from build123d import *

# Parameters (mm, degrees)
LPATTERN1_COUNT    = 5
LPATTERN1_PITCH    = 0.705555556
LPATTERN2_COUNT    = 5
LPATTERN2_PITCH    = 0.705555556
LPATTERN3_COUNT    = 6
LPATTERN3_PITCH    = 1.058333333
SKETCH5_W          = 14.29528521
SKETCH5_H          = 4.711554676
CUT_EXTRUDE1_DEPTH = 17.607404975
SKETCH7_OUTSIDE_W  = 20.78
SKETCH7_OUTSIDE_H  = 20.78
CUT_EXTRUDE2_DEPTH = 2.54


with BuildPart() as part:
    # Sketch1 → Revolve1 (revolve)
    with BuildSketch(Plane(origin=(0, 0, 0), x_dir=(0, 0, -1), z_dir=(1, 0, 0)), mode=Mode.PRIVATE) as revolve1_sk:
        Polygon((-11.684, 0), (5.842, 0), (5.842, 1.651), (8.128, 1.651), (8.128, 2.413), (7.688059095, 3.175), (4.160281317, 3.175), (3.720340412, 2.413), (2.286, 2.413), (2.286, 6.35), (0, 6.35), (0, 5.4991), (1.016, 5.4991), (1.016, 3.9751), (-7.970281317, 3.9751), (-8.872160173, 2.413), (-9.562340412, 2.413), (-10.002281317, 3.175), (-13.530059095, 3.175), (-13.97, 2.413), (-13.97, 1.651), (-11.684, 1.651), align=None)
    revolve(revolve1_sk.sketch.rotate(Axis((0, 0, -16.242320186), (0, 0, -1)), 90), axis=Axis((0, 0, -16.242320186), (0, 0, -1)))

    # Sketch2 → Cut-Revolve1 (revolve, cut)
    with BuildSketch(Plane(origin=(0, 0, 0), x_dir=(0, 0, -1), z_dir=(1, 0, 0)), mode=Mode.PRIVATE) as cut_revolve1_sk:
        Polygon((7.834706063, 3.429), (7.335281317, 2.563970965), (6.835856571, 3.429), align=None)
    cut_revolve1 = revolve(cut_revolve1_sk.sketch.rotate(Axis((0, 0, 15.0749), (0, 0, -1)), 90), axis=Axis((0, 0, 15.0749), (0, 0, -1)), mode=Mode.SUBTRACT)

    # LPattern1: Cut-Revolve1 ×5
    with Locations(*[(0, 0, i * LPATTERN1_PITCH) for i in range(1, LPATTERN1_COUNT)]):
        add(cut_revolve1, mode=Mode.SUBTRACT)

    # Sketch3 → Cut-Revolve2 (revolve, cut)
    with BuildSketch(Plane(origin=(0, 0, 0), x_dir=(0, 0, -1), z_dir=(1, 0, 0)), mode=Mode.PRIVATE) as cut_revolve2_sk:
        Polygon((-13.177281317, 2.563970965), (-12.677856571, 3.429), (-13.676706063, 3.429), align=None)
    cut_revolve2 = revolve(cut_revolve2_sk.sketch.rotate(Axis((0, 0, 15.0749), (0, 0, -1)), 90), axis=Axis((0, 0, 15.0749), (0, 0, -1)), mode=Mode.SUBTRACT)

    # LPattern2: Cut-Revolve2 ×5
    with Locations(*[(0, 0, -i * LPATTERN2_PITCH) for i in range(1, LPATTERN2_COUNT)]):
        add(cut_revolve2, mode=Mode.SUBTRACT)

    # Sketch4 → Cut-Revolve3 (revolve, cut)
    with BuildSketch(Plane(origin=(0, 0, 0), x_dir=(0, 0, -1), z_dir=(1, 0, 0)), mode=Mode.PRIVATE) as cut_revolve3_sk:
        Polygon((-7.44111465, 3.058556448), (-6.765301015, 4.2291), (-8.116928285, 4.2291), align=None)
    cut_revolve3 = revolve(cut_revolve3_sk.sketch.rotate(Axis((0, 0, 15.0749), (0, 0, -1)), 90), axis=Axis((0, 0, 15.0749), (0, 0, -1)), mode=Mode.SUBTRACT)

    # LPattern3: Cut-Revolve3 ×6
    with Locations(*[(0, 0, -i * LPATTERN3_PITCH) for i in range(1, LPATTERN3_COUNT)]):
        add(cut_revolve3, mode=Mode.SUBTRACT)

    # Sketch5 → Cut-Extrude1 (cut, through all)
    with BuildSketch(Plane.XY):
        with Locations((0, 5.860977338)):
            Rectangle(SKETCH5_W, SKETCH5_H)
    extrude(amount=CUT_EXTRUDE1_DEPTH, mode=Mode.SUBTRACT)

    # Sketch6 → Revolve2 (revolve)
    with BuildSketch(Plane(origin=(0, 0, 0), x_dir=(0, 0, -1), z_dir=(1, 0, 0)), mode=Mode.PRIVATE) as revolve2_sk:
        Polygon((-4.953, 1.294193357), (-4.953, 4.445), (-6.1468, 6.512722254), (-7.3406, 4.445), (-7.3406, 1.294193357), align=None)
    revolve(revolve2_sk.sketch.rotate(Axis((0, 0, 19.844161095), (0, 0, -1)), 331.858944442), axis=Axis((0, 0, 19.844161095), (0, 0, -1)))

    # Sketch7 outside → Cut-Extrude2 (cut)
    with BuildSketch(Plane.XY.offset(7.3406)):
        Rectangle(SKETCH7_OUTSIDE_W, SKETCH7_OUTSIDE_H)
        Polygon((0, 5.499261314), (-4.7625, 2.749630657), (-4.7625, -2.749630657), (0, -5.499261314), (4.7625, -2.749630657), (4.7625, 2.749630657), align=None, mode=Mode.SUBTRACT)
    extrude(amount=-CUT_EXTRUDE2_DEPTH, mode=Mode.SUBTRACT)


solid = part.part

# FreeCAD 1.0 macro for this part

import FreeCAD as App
import Part
import Sketcher
from FreeCAD import Vector
Q = App.Units.Quantity

doc = App.newDocument("Part")
params = doc.addObject("Spreadsheet::Sheet", "Params")
for row, (alias, value) in enumerate([
    ("sketch1_width", "0.03 in"),
    ("sketch1_width2", "0.06 in"),
    ("sketch1_height", "0.69 in"),
    ("sketch1_height2", "0.09 in"),
    ("sketch1_height3", "0.04 in"),
    ("revolution_angle", "360 deg"),
    ("groove_angle", "360 deg"),
    ("linearpattern_pitch", "0.705556 mm"),
    ("groove2_angle", "360 deg"),
    ("linearpattern2_pitch", "0.705556 mm"),
    ("groove3_angle", "360 deg"),
    ("linearpattern3_pitch", "1.058333 mm"),
    ("sketch6_height", "0.094 in"),
    ("revolution2_angle", "360 deg"),
    ("pocket2_length", "0.1 in"),
], start=1):
    params.set(f"A{row}", alias)
    params.set(f"B{row}", "=" + value)
    params.setAlias(f"B{row}", alias)

body = doc.addObject("PartDesign::Body", "Body")

# Sketch on YZ plane
sketch1 = doc.addObject("Sketcher::SketchObject", "Sketch")
body.addObject(sketch1)
sketch1.AttachmentSupport = (doc.YZ_Plane, [""])
sketch1.MapMode = "FlatFace"
sketch1.addGeometry([
    Part.LineSegment(Vector(0, 11.684, 0), Vector(0, -5.842, 0)),  # 0
    Part.LineSegment(Vector(0, -5.842, 0), Vector(1.651, -5.842, 0)),  # 1
    Part.LineSegment(Vector(1.651, -5.842, 0), Vector(1.651, -8.128, 0)),  # 2
    Part.LineSegment(Vector(1.651, -8.128, 0), Vector(2.413, -8.128, 0)),  # 3
    Part.LineSegment(Vector(2.413, -8.128, 0), Vector(3.175, -7.688059, 0)),  # 4
    Part.LineSegment(Vector(3.175, -7.688059, 0), Vector(3.175, -4.160281, 0)),  # 5
    Part.LineSegment(Vector(3.175, -4.160281, 0), Vector(2.413, -3.72034, 0)),  # 6
    Part.LineSegment(Vector(2.413, -3.72034, 0), Vector(2.413, -2.286, 0)),  # 7
    Part.LineSegment(Vector(2.413, -2.286, 0), Vector(6.35, -2.286, 0)),  # 8
    Part.LineSegment(Vector(6.35, -2.286, 0), Vector(6.35, 0, 0)),  # 9
    Part.LineSegment(Vector(6.35, 0, 0), Vector(5.4991, 0, 0)),  # 10
    Part.LineSegment(Vector(5.4991, 0, 0), Vector(5.4991, -1.016, 0)),  # 11
    Part.LineSegment(Vector(5.4991, -1.016, 0), Vector(3.9751, -1.016, 0)),  # 12
    Part.LineSegment(Vector(3.9751, -1.016, 0), Vector(3.9751, 7.970281, 0)),  # 13
    Part.LineSegment(Vector(3.9751, 7.970281, 0), Vector(2.413, 8.87216, 0)),  # 14
    Part.LineSegment(Vector(2.413, 8.87216, 0), Vector(2.413, 9.56234, 0)),  # 15
    Part.LineSegment(Vector(2.413, 9.56234, 0), Vector(3.175, 10.002281, 0)),  # 16
    Part.LineSegment(Vector(3.175, 10.002281, 0), Vector(3.175, 13.530059, 0)),  # 17
    Part.LineSegment(Vector(3.175, 13.530059, 0), Vector(2.413, 13.97, 0)),  # 18
    Part.LineSegment(Vector(2.413, 13.97, 0), Vector(1.651, 13.97, 0)),  # 19
    Part.LineSegment(Vector(1.651, 13.97, 0), Vector(1.651, 11.684, 0)),  # 20
    Part.LineSegment(Vector(1.651, 11.684, 0), Vector(0, 11.684, 0)),  # 21
], False)
sketch1.addConstraint([
    Sketcher.Constraint("Coincident", 0, 2, 1, 1),
    Sketcher.Constraint("Coincident", 1, 2, 2, 1),
    Sketcher.Constraint("Coincident", 2, 2, 3, 1),
    Sketcher.Constraint("Coincident", 3, 2, 4, 1),
    Sketcher.Constraint("Coincident", 4, 2, 5, 1),
    Sketcher.Constraint("Coincident", 5, 2, 6, 1),
    Sketcher.Constraint("Coincident", 6, 2, 7, 1),
    Sketcher.Constraint("Coincident", 7, 2, 8, 1),
    Sketcher.Constraint("Coincident", 8, 2, 9, 1),
    Sketcher.Constraint("Coincident", 9, 2, 10, 1),
    Sketcher.Constraint("Coincident", 10, 2, 11, 1),
    Sketcher.Constraint("Coincident", 11, 2, 12, 1),
    Sketcher.Constraint("Coincident", 12, 2, 13, 1),
    Sketcher.Constraint("Coincident", 13, 2, 14, 1),
    Sketcher.Constraint("Coincident", 14, 2, 15, 1),
    Sketcher.Constraint("Coincident", 15, 2, 16, 1),
    Sketcher.Constraint("Coincident", 16, 2, 17, 1),
    Sketcher.Constraint("Coincident", 17, 2, 18, 1),
    Sketcher.Constraint("Coincident", 18, 2, 19, 1),
    Sketcher.Constraint("Coincident", 19, 2, 20, 1),
    Sketcher.Constraint("Coincident", 20, 2, 21, 1),
    Sketcher.Constraint("Coincident", 21, 2, 0, 1),
    Sketcher.Constraint("Vertical", 0),
    Sketcher.Constraint("Horizontal", 1),
    Sketcher.Constraint("Vertical", 2),
    Sketcher.Constraint("Horizontal", 3),
    Sketcher.Constraint("Vertical", 5),
    Sketcher.Constraint("Vertical", 7),
    Sketcher.Constraint("Horizontal", 8),
    Sketcher.Constraint("Vertical", 9),
    Sketcher.Constraint("Horizontal", 10),
    Sketcher.Constraint("Vertical", 11),
    Sketcher.Constraint("Horizontal", 12),
    Sketcher.Constraint("Vertical", 13),
    Sketcher.Constraint("Vertical", 15),
    Sketcher.Constraint("Vertical", 17),
    Sketcher.Constraint("Horizontal", 19),
    Sketcher.Constraint("Vertical", 20),
    Sketcher.Constraint("Horizontal", 21),
    Sketcher.Constraint("PointOnObject", 0, 2, -2),
    Sketcher.Constraint("PointOnObject", 9, 2, -1),
    Sketcher.Constraint("Parallel", 6, 14),
    Sketcher.Constraint("Parallel", 4, 16),
    Sketcher.Constraint("Parallel", 14, 18),
    Sketcher.Constraint("Vertical", 3, 2, 6, 2),
    Sketcher.Constraint("Vertical", 7, 2, 14, 2),
    Sketcher.Constraint("Vertical", 5, 2, 16, 2),
    Sketcher.Constraint("Vertical", 15, 2, 18, 2),
    Sketcher.Constraint("Vertical", 2, 2, 19, 2),
    Sketcher.Constraint("Equal", 2, 9),
    Sketcher.Constraint("Equal", 5, 17),
    Sketcher.Constraint("Equal", 9, 20),
    Sketcher.Constraint("Equal", 4, 6),
    Sketcher.Constraint("Angle", 4, Q("30 deg")),
    Sketcher.Constraint("DistanceX", 3, 1, 3, 2, Q("0.03 in")),
    Sketcher.Constraint("DistanceX", 12, 2, 12, 1, Q("0.06 in")),
    Sketcher.Constraint("DistanceY", 0, 2, 0, 1, Q("0.69 in")),
    Sketcher.Constraint("DistanceY", 2, 2, 2, 1, Q("0.09 in")),
    Sketcher.Constraint("DistanceY", 11, 2, 11, 1, Q("0.04 in")),
    Sketcher.Constraint("DistanceX", 1, 1, 1, 2, Q("0.065 in")),
    Sketcher.Constraint("DistanceX", 8, 1, 8, 2, Q("0.155 in")),
    Sketcher.Constraint("DistanceY", 0, 2, -1, 1, Q("0.23 in")),
    Sketcher.Constraint("DistanceX", 3, 2, 4, 2, Q("0.03 in")),
    Sketcher.Constraint("DistanceY", 13, 2, 16, 2, Q("0.08 in")),
    Sketcher.Constraint("DistanceX", 10, 2, 10, 1, Q("0.0335 in")),
    Sketcher.Constraint("DistanceY", 7, 1, 7, 2, Q("1.43434 mm")),
])
sketch1.setExpression("Constraints[54]", "Params.sketch1_width")
sketch1.setExpression("Constraints[55]", "Params.sketch1_width2")
sketch1.setExpression("Constraints[56]", "Params.sketch1_height")
sketch1.setExpression("Constraints[57]", "Params.sketch1_height2")
sketch1.setExpression("Constraints[58]", "Params.sketch1_height3")
revolution = doc.addObject("PartDesign::Revolution", "Revolution")
body.addObject(revolution)
revolution.Profile = sketch1
revolution.ReferenceAxis = (sketch1, ["V_Axis"])
revolution.setExpression("Angle", "Params.revolution_angle")

# Sketch on YZ plane
sketch2 = doc.addObject("Sketcher::SketchObject", "Sketch001")
body.addObject(sketch2)
sketch2.AttachmentSupport = (doc.YZ_Plane, [""])
sketch2.MapMode = "FlatFace"
sketch2.addGeometry([
    Part.LineSegment(Vector(2.563971, -7.335281, 0), Vector(3.429, -7.834706, 0)),
    Part.LineSegment(Vector(3.429, -7.834706, 0), Vector(3.429, -6.835857, 0)),
    Part.LineSegment(Vector(3.429, -6.835857, 0), Vector(2.563971, -7.335281, 0)),
], False)
sketch2.addConstraint([
    Sketcher.Constraint("Coincident", 0, 2, 1, 1),
    Sketcher.Constraint("Coincident", 1, 2, 2, 1),
    Sketcher.Constraint("Coincident", 2, 2, 0, 1),
    Sketcher.Constraint("Vertical", 1),
    Sketcher.Constraint("Equal", 0, 2),
    Sketcher.Constraint("Angle", 0, Q("-30 deg")),
    Sketcher.Constraint("DistanceX", -1, 1, 0, 2, Q("0.135 in")),
    Sketcher.Constraint("DistanceY", 1, 1, 1, 2, Q("0.998849 mm")),
    Sketcher.Constraint("DistanceY", 2, 2, -1, 1, Q("7.335281 mm")),
])
groove = doc.addObject("PartDesign::Groove", "Groove")
body.addObject(groove)
groove.Profile = sketch2
groove.ReferenceAxis = (sketch2, ["V_Axis"])
groove.setExpression("Angle", "Params.groove_angle")
doc.recompute()

linearpattern = doc.addObject("PartDesign::LinearPattern", "LinearPattern")
body.addObject(linearpattern)
linearpattern.Originals = [groove]
linearpattern.Direction = (doc.Z_Axis, [""])
linearpattern.Mode = "offset"
linearpattern.setExpression("Offset", "Params.linearpattern_pitch")
linearpattern.Occurrences = 5
body.Tip = linearpattern

# Sketch on YZ plane
sketch3 = doc.addObject("Sketcher::SketchObject", "Sketch002")
body.addObject(sketch3)
sketch3.AttachmentSupport = (doc.YZ_Plane, [""])
sketch3.MapMode = "FlatFace"
sketch3.addGeometry([
    Part.LineSegment(Vector(2.563971, 13.177281, 0), Vector(3.429, 12.677857, 0)),
    Part.LineSegment(Vector(3.429, 12.677857, 0), Vector(3.429, 13.676706, 0)),
    Part.LineSegment(Vector(3.429, 13.676706, 0), Vector(2.563971, 13.177281, 0)),
], False)
sketch3.addConstraint([
    Sketcher.Constraint("Coincident", 0, 2, 1, 1),
    Sketcher.Constraint("Coincident", 1, 2, 2, 1),
    Sketcher.Constraint("Coincident", 2, 2, 0, 1),
    Sketcher.Constraint("Vertical", 1),
    Sketcher.Constraint("Equal", 0, 2),
    Sketcher.Constraint("Angle", 0, Q("-30 deg")),
    Sketcher.Constraint("DistanceX", -1, 1, 0, 2, Q("0.135 in")),
    Sketcher.Constraint("DistanceY", 1, 1, 1, 2, Q("0.998849 mm")),
    Sketcher.Constraint("DistanceY", -1, 1, 2, 2, Q("13.177281 mm")),
])
groove2 = doc.addObject("PartDesign::Groove", "Groove001")
body.addObject(groove2)
groove2.Profile = sketch3
groove2.ReferenceAxis = (sketch3, ["V_Axis"])
groove2.setExpression("Angle", "Params.groove2_angle")
doc.recompute()

linearpattern2 = doc.addObject("PartDesign::LinearPattern", "LinearPattern001")
body.addObject(linearpattern2)
linearpattern2.Originals = [groove2]
linearpattern2.Direction = (doc.Z_Axis, [""])
linearpattern2.Mode = "offset"
linearpattern2.setExpression("Offset", "Params.linearpattern2_pitch")
linearpattern2.Occurrences = 5
linearpattern2.Reversed = True
body.Tip = linearpattern2

# Sketch on YZ plane
sketch4 = doc.addObject("Sketcher::SketchObject", "Sketch003")
body.addObject(sketch4)
sketch4.AttachmentSupport = (doc.YZ_Plane, [""])
sketch4.MapMode = "FlatFace"
sketch4.addGeometry([
    Part.LineSegment(Vector(3.058556, 7.441115, 0), Vector(4.2291, 6.765301, 0)),
    Part.LineSegment(Vector(4.2291, 6.765301, 0), Vector(4.2291, 8.116928, 0)),
    Part.LineSegment(Vector(4.2291, 8.116928, 0), Vector(3.058556, 7.441115, 0)),
], False)
sketch4.addConstraint([
    Sketcher.Constraint("Coincident", 0, 2, 1, 1),
    Sketcher.Constraint("Coincident", 1, 2, 2, 1),
    Sketcher.Constraint("Coincident", 2, 2, 0, 1),
    Sketcher.Constraint("Vertical", 1),
    Sketcher.Constraint("Equal", 0, 2),
    Sketcher.Constraint("Angle", 0, Q("-30 deg")),
    Sketcher.Constraint("DistanceX", -1, 1, 0, 2, Q("0.1665 in")),
    Sketcher.Constraint("DistanceY", -1, 1, 0, 2, Q("6.765301 mm")),
    Sketcher.Constraint("DistanceY", 1, 1, 1, 2, Q("1.351627 mm")),
])
groove3 = doc.addObject("PartDesign::Groove", "Groove002")
body.addObject(groove3)
groove3.Profile = sketch4
groove3.ReferenceAxis = (sketch4, ["V_Axis"])
groove3.setExpression("Angle", "Params.groove3_angle")
doc.recompute()

linearpattern3 = doc.addObject("PartDesign::LinearPattern", "LinearPattern002")
body.addObject(linearpattern3)
linearpattern3.Originals = [groove3]
linearpattern3.Direction = (doc.Z_Axis, [""])
linearpattern3.Mode = "offset"
linearpattern3.setExpression("Offset", "Params.linearpattern3_pitch")
linearpattern3.Occurrences = 6
linearpattern3.Reversed = True
body.Tip = linearpattern3

# Sketch on XY plane
sketch5 = doc.addObject("Sketcher::SketchObject", "Sketch004")
body.addObject(sketch5)
sketch5.AttachmentSupport = (doc.XY_Plane, [""])
sketch5.MapMode = "FlatFace"
sketch5.addGeometry([
    Part.LineSegment(Vector(-7.147643, 8.216755, 0), Vector(-7.147643, 3.5052, 0)),
    Part.LineSegment(Vector(-7.147643, 3.5052, 0), Vector(7.147643, 3.5052, 0)),
    Part.LineSegment(Vector(7.147643, 3.5052, 0), Vector(7.147643, 8.216755, 0)),
    Part.LineSegment(Vector(7.147643, 8.216755, 0), Vector(-7.147643, 8.216755, 0)),
], False)
sketch5.addConstraint([
    Sketcher.Constraint("Coincident", 0, 2, 1, 1),
    Sketcher.Constraint("Coincident", 1, 2, 2, 1),
    Sketcher.Constraint("Coincident", 2, 2, 3, 1),
    Sketcher.Constraint("Coincident", 3, 2, 0, 1),
    Sketcher.Constraint("Vertical", 0),
    Sketcher.Constraint("Horizontal", 1),
    Sketcher.Constraint("Vertical", 2),
    Sketcher.Constraint("Horizontal", 3),
    Sketcher.Constraint("DistanceY", -1, 1, 0, 2, Q("0.138 in")),
    Sketcher.Constraint("DistanceX", 1, 1, 1, 2, Q("14.295285 mm")),
    Sketcher.Constraint("DistanceY", 0, 2, 0, 1, Q("4.711555 mm")),
    Sketcher.Constraint("DistanceX", 0, 2, -1, 1, Q("7.147643 mm")),
])
pocket1 = doc.addObject("PartDesign::Pocket", "Pocket")
body.addObject(pocket1)
pocket1.Profile = sketch5
pocket1.Type = "ThroughAll"
pocket1.Reversed = True

# Sketch on YZ plane
sketch6 = doc.addObject("Sketcher::SketchObject", "Sketch005")
body.addObject(sketch6)
sketch6.AttachmentSupport = (doc.YZ_Plane, [""])
sketch6.MapMode = "FlatFace"
sketch6.addGeometry([
    Part.LineSegment(Vector(1.294193, 4.953, 0), Vector(4.445, 4.953, 0)),  # 0
    Part.LineSegment(Vector(4.445, 4.953, 0), Vector(6.512722, 6.1468, 0)),  # 1
    Part.LineSegment(Vector(6.512722, 6.1468, 0), Vector(4.445, 7.3406, 0)),  # 2
    Part.LineSegment(Vector(4.445, 7.3406, 0), Vector(1.294193, 7.3406, 0)),  # 3
    Part.LineSegment(Vector(1.294193, 7.3406, 0), Vector(1.294193, 4.953, 0)),  # 4
], False)
sketch6.addConstraint([
    Sketcher.Constraint("Coincident", 0, 2, 1, 1),
    Sketcher.Constraint("Coincident", 1, 2, 2, 1),
    Sketcher.Constraint("Coincident", 2, 2, 3, 1),
    Sketcher.Constraint("Coincident", 3, 2, 4, 1),
    Sketcher.Constraint("Coincident", 4, 2, 0, 1),
    Sketcher.Constraint("Horizontal", 0),
    Sketcher.Constraint("Horizontal", 3),
    Sketcher.Constraint("Vertical", 4),
    Sketcher.Constraint("Vertical", 0, 2, 2, 2),
    Sketcher.Constraint("Equal", 1, 2),
    Sketcher.Constraint("Angle", 1, Q("30 deg")),
    Sketcher.Constraint("DistanceY", 4, 2, 4, 1, Q("0.094 in")),
    Sketcher.Constraint("DistanceX", -1, 1, 0, 2, Q("0.175 in")),
    Sketcher.Constraint("DistanceY", -1, 1, 0, 2, Q("0.195 in")),
    Sketcher.Constraint("DistanceX", 0, 1, 0, 2, Q("3.150807 mm")),
])
sketch6.setExpression("Constraints[11]", "Params.sketch6_height")
revolution2 = doc.addObject("PartDesign::Revolution", "Revolution001")
body.addObject(revolution2)
revolution2.Profile = sketch6
revolution2.ReferenceAxis = (sketch6, ["V_Axis"])
revolution2.setExpression("Angle", "Params.revolution2_angle")

# Sketch on XY plane
sketch7 = doc.addObject("Sketcher::SketchObject", "Sketch006")
body.addObject(sketch7)
sketch7.AttachmentSupport = (doc.XY_Plane, [""])
sketch7.MapMode = "FlatFace"
sketch7.AttachmentOffset = App.Placement(Vector(0, 0, 0.289 * 25.4), App.Rotation())
sketch7.addGeometry([
    Part.LineSegment(Vector(-10.39, 10.39, 0), Vector(-10.39, -10.39, 0)),  # 0
    Part.LineSegment(Vector(-10.39, -10.39, 0), Vector(10.39, -10.39, 0)),  # 1
    Part.LineSegment(Vector(10.39, -10.39, 0), Vector(10.39, 10.39, 0)),  # 2
    Part.LineSegment(Vector(10.39, 10.39, 0), Vector(-10.39, 10.39, 0)),  # 3
    Part.LineSegment(Vector(-4.7625, 2.749631, 0), Vector(0, 5.499261, 0)),  # 4
    Part.LineSegment(Vector(0, 5.499261, 0), Vector(4.7625, 2.749631, 0)),  # 5
    Part.LineSegment(Vector(4.7625, 2.749631, 0), Vector(4.7625, -2.749631, 0)),  # 6
    Part.LineSegment(Vector(4.7625, -2.749631, 0), Vector(0, -5.499261, 0)),  # 7
    Part.LineSegment(Vector(0, -5.499261, 0), Vector(-4.7625, -2.749631, 0)),  # 8
    Part.LineSegment(Vector(-4.7625, -2.749631, 0), Vector(-4.7625, 2.749631, 0)),  # 9
], False)
sketch7.addConstraint([
    Sketcher.Constraint("Coincident", 0, 2, 1, 1),
    Sketcher.Constraint("Coincident", 1, 2, 2, 1),
    Sketcher.Constraint("Coincident", 2, 2, 3, 1),
    Sketcher.Constraint("Coincident", 3, 2, 0, 1),
    Sketcher.Constraint("Coincident", 4, 2, 5, 1),
    Sketcher.Constraint("Coincident", 5, 2, 6, 1),
    Sketcher.Constraint("Coincident", 6, 2, 7, 1),
    Sketcher.Constraint("Coincident", 7, 2, 8, 1),
    Sketcher.Constraint("Coincident", 8, 2, 9, 1),
    Sketcher.Constraint("Coincident", 9, 2, 4, 1),
    Sketcher.Constraint("Vertical", 0),
    Sketcher.Constraint("Horizontal", 1),
    Sketcher.Constraint("Vertical", 2),
    Sketcher.Constraint("Horizontal", 3),
    Sketcher.Constraint("Vertical", 6),
    Sketcher.Constraint("Vertical", 9),
    Sketcher.Constraint("Symmetric", 0, 2, 2, 2, -1, 1),
    Sketcher.Constraint("Symmetric", 4, 2, 7, 2, -1, 1),
    Sketcher.Constraint("Symmetric", 5, 2, 8, 2, -1, 1),
    Sketcher.Constraint("PointOnObject", 4, 2, -2),
    Sketcher.Constraint("Parallel", 4, 7),
    Sketcher.Constraint("Horizontal", 6, 2, 8, 2),
    Sketcher.Constraint("Equal", 3, 0),
    Sketcher.Constraint("Angle", 4, Q("30 deg")),
    Sketcher.Constraint("DistanceX", -1, 1, 5, 2, Q("0.1875 in")),
    Sketcher.Constraint("DistanceX", 1, 1, 1, 2, Q("20.78 mm")),
    Sketcher.Constraint("DistanceY", 6, 2, 6, 1, Q("5.499261 mm")),
])
pocket2 = doc.addObject("PartDesign::Pocket", "Pocket001")
body.addObject(pocket2)
pocket2.Profile = sketch7
pocket2.setExpression("Length", "Params.pocket2_length")

doc.recompute()
